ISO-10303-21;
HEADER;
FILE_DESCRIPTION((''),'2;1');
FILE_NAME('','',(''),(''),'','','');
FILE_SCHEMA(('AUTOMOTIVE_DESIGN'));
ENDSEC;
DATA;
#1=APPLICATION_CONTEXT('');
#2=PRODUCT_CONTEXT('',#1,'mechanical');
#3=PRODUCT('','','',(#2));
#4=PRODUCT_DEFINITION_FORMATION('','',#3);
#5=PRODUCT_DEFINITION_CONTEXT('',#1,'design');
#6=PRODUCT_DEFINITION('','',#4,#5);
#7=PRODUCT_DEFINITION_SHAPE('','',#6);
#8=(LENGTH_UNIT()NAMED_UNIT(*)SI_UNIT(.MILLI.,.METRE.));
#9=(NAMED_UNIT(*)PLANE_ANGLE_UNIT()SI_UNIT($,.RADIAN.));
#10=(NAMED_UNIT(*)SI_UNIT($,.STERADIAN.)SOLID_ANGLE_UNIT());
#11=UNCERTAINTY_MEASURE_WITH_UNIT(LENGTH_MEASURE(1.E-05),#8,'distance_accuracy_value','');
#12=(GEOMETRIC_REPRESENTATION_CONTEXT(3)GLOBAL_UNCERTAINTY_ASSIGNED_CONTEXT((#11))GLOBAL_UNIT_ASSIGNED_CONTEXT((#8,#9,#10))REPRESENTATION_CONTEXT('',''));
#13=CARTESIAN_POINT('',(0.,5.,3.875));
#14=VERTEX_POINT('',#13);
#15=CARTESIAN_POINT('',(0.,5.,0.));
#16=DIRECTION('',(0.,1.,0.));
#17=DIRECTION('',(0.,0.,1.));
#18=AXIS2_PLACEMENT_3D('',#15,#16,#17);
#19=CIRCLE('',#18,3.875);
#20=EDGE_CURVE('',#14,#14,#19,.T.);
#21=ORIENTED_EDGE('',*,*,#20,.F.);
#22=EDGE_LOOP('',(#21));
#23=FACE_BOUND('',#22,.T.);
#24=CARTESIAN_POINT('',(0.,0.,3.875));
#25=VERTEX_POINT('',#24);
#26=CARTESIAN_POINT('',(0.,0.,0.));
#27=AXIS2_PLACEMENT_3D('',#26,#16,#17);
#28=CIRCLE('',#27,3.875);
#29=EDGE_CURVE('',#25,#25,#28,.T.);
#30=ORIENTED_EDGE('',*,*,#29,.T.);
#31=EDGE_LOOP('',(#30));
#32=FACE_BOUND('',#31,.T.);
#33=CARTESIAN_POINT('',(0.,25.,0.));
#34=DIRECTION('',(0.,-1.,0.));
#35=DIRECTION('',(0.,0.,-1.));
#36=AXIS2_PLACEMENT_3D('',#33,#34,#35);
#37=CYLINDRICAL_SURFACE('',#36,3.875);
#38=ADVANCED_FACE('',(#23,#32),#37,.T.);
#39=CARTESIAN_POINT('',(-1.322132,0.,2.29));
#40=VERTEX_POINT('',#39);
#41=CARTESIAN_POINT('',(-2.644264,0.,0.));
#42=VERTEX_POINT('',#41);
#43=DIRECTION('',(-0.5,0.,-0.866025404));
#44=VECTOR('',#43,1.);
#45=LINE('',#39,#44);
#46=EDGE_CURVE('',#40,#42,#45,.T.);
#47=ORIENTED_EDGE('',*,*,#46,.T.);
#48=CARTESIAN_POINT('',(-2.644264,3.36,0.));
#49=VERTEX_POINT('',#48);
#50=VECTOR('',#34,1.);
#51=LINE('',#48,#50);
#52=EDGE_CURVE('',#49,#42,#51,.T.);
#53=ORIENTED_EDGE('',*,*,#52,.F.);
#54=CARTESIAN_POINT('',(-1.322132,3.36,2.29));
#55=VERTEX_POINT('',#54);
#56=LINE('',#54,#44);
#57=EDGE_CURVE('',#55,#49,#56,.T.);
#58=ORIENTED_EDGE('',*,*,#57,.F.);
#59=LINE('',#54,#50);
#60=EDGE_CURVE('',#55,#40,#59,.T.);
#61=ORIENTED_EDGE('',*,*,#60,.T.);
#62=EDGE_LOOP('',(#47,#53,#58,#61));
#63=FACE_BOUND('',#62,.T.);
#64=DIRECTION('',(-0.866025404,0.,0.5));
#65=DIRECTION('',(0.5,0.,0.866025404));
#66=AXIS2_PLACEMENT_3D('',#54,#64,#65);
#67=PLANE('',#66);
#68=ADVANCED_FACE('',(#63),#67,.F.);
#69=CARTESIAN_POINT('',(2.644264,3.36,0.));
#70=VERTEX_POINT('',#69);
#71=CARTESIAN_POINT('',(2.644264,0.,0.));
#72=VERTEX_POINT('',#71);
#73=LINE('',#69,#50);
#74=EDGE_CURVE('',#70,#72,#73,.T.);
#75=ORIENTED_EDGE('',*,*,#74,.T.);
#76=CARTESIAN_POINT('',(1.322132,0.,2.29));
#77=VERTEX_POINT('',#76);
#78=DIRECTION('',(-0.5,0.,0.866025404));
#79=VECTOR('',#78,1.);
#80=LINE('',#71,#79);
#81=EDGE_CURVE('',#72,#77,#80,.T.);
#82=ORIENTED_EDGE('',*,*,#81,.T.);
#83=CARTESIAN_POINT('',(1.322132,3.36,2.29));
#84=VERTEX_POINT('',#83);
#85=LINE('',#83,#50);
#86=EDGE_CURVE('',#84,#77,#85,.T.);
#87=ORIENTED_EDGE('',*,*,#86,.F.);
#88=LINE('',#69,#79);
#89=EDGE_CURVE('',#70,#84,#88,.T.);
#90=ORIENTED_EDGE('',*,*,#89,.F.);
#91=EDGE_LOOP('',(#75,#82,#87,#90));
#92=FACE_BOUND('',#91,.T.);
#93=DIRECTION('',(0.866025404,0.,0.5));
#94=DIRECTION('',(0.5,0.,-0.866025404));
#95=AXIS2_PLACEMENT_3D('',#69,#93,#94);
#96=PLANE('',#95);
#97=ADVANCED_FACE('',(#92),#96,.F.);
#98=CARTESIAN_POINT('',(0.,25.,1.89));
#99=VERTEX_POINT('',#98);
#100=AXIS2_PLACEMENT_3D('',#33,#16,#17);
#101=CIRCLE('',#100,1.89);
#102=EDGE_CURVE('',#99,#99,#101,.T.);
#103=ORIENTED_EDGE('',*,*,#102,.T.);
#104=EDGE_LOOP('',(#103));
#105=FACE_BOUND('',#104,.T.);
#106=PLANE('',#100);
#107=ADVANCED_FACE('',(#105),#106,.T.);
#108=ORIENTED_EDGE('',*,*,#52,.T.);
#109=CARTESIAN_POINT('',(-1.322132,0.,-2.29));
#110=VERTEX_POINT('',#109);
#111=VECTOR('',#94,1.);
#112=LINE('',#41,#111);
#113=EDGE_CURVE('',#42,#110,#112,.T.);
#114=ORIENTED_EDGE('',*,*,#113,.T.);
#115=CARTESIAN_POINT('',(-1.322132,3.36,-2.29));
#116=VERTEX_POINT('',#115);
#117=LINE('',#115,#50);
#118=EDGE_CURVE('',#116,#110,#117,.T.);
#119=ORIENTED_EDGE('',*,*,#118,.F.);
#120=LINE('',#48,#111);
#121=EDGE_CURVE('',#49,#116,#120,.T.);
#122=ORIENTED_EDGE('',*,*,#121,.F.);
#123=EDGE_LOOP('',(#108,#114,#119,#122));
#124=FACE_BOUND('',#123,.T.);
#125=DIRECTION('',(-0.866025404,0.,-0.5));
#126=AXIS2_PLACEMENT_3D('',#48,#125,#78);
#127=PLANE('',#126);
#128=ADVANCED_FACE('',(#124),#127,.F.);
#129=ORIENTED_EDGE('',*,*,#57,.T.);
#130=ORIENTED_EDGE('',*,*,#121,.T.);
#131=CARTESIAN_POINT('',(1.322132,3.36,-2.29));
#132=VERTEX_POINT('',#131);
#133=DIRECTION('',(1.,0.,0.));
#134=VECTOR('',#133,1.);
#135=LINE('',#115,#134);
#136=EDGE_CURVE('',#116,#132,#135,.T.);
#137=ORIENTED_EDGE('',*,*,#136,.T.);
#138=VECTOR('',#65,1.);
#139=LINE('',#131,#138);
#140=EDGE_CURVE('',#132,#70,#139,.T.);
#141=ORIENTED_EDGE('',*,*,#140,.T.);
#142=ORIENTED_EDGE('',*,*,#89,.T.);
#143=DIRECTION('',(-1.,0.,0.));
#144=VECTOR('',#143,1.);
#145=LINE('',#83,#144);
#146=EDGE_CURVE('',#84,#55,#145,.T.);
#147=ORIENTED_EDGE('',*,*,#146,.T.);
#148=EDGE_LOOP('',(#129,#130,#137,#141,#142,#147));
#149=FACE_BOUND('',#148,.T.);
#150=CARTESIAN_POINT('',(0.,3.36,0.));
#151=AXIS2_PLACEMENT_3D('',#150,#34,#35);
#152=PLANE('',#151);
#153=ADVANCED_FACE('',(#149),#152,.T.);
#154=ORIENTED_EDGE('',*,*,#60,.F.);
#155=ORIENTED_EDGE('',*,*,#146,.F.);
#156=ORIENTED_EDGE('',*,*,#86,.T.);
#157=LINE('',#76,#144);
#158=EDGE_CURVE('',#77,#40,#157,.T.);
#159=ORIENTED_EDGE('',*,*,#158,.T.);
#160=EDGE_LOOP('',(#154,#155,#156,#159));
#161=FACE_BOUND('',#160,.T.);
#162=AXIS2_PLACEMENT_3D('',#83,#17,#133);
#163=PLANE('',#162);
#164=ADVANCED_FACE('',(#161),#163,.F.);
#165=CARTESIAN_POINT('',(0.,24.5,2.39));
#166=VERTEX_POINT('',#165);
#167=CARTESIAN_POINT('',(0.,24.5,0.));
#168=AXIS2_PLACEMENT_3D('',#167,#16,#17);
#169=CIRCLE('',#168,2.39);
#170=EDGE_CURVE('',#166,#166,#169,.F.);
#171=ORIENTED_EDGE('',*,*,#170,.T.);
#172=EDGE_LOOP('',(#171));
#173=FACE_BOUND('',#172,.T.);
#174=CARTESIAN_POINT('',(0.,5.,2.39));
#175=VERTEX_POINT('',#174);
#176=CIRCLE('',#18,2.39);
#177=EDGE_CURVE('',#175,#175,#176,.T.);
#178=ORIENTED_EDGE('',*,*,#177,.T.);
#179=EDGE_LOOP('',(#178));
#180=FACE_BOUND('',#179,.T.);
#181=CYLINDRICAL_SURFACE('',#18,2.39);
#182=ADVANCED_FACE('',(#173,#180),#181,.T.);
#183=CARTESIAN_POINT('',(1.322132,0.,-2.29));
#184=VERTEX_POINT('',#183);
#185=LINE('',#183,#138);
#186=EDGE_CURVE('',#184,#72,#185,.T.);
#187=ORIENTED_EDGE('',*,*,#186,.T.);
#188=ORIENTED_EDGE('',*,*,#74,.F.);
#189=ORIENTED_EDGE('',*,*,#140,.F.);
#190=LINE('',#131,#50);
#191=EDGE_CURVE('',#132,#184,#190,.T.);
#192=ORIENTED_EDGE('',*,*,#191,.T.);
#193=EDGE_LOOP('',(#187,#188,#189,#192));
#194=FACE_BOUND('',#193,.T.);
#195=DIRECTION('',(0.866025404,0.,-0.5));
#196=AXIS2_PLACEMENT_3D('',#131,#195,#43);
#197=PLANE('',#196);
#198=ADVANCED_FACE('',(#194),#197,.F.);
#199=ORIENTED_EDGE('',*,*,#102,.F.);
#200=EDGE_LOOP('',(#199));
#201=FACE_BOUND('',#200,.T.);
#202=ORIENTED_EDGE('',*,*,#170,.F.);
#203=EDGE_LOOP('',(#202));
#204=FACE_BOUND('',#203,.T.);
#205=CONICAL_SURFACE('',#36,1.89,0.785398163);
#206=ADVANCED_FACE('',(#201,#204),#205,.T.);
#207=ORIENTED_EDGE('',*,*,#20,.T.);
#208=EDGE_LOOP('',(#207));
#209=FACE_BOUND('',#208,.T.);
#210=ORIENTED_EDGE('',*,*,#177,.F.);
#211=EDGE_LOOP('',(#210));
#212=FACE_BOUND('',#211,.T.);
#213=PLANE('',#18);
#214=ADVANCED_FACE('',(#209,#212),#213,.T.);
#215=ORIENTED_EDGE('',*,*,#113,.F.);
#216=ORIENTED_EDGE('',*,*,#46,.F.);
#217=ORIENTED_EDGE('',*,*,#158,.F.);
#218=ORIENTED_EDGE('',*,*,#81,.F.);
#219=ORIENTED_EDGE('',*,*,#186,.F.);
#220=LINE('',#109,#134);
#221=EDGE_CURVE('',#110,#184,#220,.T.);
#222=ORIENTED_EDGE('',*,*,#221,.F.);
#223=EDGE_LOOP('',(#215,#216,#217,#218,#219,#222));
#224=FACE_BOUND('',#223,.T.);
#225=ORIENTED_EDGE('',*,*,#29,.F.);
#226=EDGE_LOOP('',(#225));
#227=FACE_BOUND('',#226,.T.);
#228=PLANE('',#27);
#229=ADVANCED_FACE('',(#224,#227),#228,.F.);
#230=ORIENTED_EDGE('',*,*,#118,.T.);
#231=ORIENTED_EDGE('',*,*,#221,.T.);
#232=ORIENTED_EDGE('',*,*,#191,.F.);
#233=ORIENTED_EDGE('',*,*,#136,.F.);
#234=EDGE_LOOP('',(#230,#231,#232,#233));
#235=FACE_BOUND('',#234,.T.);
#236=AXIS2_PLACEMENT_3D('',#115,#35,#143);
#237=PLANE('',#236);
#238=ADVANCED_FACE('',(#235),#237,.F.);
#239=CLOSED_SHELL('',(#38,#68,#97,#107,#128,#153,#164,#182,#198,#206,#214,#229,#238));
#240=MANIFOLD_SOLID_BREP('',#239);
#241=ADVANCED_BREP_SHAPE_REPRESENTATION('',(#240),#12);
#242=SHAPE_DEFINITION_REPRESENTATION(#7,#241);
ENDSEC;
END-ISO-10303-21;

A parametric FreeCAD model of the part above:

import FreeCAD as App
import Part
import Sketcher

V = App.Vector
Q = App.Units.Quantity


def edges_at(feature, points):
    """Names of the edges that pass closest to the given points."""
    edges = feature.Shape.Edges
    near = lambda p: min(range(len(edges)), key=lambda i: edges[i].distToShape(Part.Vertex(*p))[0])
    return sorted({f"Edge{near(p) + 1}" for p in points})


def add_polygon(sketch, points):
    """Adds a closed chain of lines whose ends are joined by coincident constraints."""
    first, n = sketch.GeometryCount, len(points)
    for a, b in zip(points, points[1:] + points[:1]):
        sketch.addGeometry(Part.LineSegment(App.Vector(*a, 0), App.Vector(*b, 0)), False)
    for i in range(n):
        sketch.addConstraint(Sketcher.Constraint("Coincident", first + i, 2, first + (i + 1) % n, 1))

doc = App.newDocument("Part")
body = doc.addObject("PartDesign::Body", "Body")

# Sketch on XZ plane
sketch1 = doc.addObject("Sketcher::SketchObject", "Sketch")
body.addObject(sketch1)
sketch1.AttachmentSupport = (doc.XZ_Plane, [""])
sketch1.MapMode = "FlatFace"
sketch1.addGeometry(Part.Circle(V(0, 0, 0), V(0, 0, 1), 3.9), False)
sketch1.addConstraint(Sketcher.Constraint("Coincident", 0, 3, -1, 1))
sketch1.addConstraint(Sketcher.Constraint("Diameter", 0, Q("7.75 mm")))
pad1 = doc.addObject("PartDesign::Pad", "Pad")
body.addObject(pad1)
pad1.Profile = sketch1
pad1.Length = 25
pad1.Reversed = True

# Sketch on XZ plane
sketch2 = doc.addObject("Sketcher::SketchObject", "Sketch001")
body.addObject(sketch2)
sketch2.AttachmentSupport = (doc.XZ_Plane, [""])
sketch2.MapMode = "FlatFace"
sketch2.AttachmentOffset = App.Placement(V(0, 0, -25), App.Rotation())
add_polygon(sketch2, [(-7.6, -7.6), (-7.6, 7.6), (7.6, 7.6), (7.6, -7.6)])  # lines 0-3
sketch2.addGeometry(Part.Circle(V(0, 0, 0), V(0, 0, 1), 2.4), False)  # 4
sketch2.addConstraint(Sketcher.Constraint("Vertical", 0))
sketch2.addConstraint(Sketcher.Constraint("Horizontal", 1))
sketch2.addConstraint(Sketcher.Constraint("Vertical", 2))
sketch2.addConstraint(Sketcher.Constraint("Horizontal", 3))
sketch2.addConstraint(Sketcher.Constraint("Coincident", 4, 3, -1, 1))
sketch2.addConstraint(Sketcher.Constraint("Symmetric", 0, 2, 2, 2, -1, 1))
sketch2.addConstraint(Sketcher.Constraint("Equal", 3, 0))
sketch2.addConstraint(Sketcher.Constraint("Diameter", 4, Q("4.78 mm")))
sketch2.addConstraint(Sketcher.Constraint("DistanceX", 1, 1, 1, 2, Q("15.21 mm")))
pocket1 = doc.addObject("PartDesign::Pocket", "Pocket")
body.addObject(pocket1)
pocket1.Profile = sketch2
pocket1.Length = 20
pocket1.Reversed = True
doc.recompute()

chamfer = doc.addObject("PartDesign::Chamfer", "Chamfer")
body.addObject(chamfer)
chamfer.Base = (pocket1, edges_at(pocket1, [(0, 25, -2.39)]))
chamfer.Size = 0.5

# Sketch on XZ plane
sketch3 = doc.addObject("Sketcher::SketchObject", "Sketch002")
body.addObject(sketch3)
sketch3.AttachmentSupport = (doc.XZ_Plane, [""])
sketch3.MapMode = "FlatFace"
add_polygon(sketch3, [(2.6, 0), (1.3, 2.3), (-1.3, 2.3), (-2.6, 0), (-1.3, -2.3), (1.3, -2.3)])  # lines 0-5
sketch3.addConstraint(Sketcher.Constraint("Horizontal", 1))
sketch3.addConstraint(Sketcher.Constraint("Horizontal", 4))
sketch3.addConstraint(Sketcher.Constraint("Symmetric", 0, 2, 3, 2, -1, 1))
sketch3.addConstraint(Sketcher.Constraint("Symmetric", 2, 2, 5, 2, -1, 1))
sketch3.addConstraint(Sketcher.Constraint("PointOnObject", 2, 2, -1))
sketch3.addConstraint(Sketcher.Constraint("Parallel", 2, 5))
sketch3.addConstraint(Sketcher.Constraint("Vertical", 1, 2, 3, 2))
sketch3.addConstraint(Sketcher.Constraint("Angle", 0, Q("120 deg")))
sketch3.addConstraint(Sketcher.Constraint("DistanceY", -1, 1, 0, 2, Q("2.29 mm")))
sketch3.addConstraint(Sketcher.Constraint("DistanceX", 1, 2, 1, 1, Q("2.644264 mm")))
pocket2 = doc.addObject("PartDesign::Pocket", "Pocket001")
body.addObject(pocket2)
pocket2.Profile = sketch3
pocket2.Length = 3.36

doc.recompute()
